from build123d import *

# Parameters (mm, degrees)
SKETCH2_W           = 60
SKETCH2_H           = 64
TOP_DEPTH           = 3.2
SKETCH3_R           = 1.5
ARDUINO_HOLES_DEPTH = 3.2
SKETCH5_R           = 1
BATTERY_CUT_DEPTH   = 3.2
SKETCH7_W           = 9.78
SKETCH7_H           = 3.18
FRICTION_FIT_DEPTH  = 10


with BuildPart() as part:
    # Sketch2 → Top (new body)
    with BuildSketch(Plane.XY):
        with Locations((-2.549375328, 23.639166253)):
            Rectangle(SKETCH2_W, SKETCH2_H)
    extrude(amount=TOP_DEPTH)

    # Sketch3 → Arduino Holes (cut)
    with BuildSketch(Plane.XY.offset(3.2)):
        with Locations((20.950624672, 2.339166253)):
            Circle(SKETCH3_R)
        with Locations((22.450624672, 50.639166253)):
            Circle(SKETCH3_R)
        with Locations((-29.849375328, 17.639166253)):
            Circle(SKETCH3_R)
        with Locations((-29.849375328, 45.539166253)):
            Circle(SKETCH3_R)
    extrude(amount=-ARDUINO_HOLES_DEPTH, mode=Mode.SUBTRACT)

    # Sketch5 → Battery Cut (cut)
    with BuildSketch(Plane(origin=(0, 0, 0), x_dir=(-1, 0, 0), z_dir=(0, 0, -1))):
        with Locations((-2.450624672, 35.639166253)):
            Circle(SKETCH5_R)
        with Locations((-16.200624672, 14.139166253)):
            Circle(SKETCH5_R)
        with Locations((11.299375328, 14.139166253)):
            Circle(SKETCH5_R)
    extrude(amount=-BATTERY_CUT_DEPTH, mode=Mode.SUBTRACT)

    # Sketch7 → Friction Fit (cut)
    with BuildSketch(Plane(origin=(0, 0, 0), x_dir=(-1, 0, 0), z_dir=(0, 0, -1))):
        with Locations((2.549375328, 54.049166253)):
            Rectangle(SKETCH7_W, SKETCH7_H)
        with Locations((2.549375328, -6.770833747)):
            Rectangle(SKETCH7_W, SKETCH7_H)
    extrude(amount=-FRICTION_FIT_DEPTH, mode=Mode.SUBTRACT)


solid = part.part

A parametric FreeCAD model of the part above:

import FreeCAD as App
import Part
import Sketcher
from FreeCAD import Vector
Q = App.Units.Quantity


def add_polygon(sketch, points):
    """Adds a closed chain of lines whose ends are joined by coincident constraints."""
    first, n = sketch.GeometryCount, len(points)
    for a, b in zip(points, points[1:] + points[:1]):
        sketch.addGeometry(Part.LineSegment(App.Vector(*a, 0), App.Vector(*b, 0)), False)
    for i in range(n):
        sketch.addConstraint(Sketcher.Constraint("Coincident", first + i, 2, first + (i + 1) % n, 1))

doc = App.newDocument("Part")
body = doc.addObject("PartDesign::Body", "Body")

sketch1 = body.newObject("Sketcher::SketchObject", "Sketch")
sketch1.AttachmentSupport = (doc.getObject("XY_Plane"), [""])
sketch1.MapMode = "FlatFace"
add_polygon(sketch1, [(-33, 56), (-33, -8), (27, -8), (27, 56)])
sketch1.addConstraint([
    Sketcher.Constraint("Vertical", 0),
    Sketcher.Constraint("Horizontal", 1),
    Sketcher.Constraint("Vertical", 2),
    Sketcher.Constraint("Horizontal", 3),
    Sketcher.Constraint("DistanceX", 1, 1, 1, 2, Q("60 mm")),
    Sketcher.Constraint("DistanceY", 0, 2, 0, 1, Q("64 mm")),
    Sketcher.Constraint("DistanceX", 0, 2, -1, 1, Q("32.549375 mm")),
    Sketcher.Constraint("DistanceY", 0, 2, -1, 1, Q("8.360834 mm")),
])
pad1 = body.newObject("PartDesign::Pad", "Pad")
pad1.Profile = sketch1
pad1.Length = 3.2

sketch2 = body.newObject("Sketcher::SketchObject", "Sketch001")
sketch2.AttachmentSupport = (doc.getObject("XY_Plane"), [""])
sketch2.MapMode = "FlatFace"
sketch2.AttachmentOffset = App.Placement(Vector(0, 0, 3.2), App.Rotation())
sketch2.addGeometry([
    Part.Circle(Vector(21, 2.3, 0), Vector(0, 0, 1), 1.5),
    Part.Circle(Vector(22.5, 50.6, 0), Vector(0, 0, 1), 1.5),
    Part.Circle(Vector(-29.8, 17.6, 0), Vector(0, 0, 1), 1.5),
    Part.Circle(Vector(-29.8, 45.5, 0), Vector(0, 0, 1), 1.5),
], False)
sketch2.addConstraint([
    Sketcher.Constraint("Equal", 0, 1),
    Sketcher.Constraint("Equal", 1, 2),
    Sketcher.Constraint("Equal", 2, 3),
    Sketcher.Constraint("Vertical", 2, 3, 3, 3),
    Sketcher.Constraint("Diameter", 0, Q("3 mm")),
    Sketcher.Constraint("DistanceY", 2, 3, 1, 3, Q("33 mm")),
    Sketcher.Constraint("DistanceX", 0, 3, 1, 3, Q("1.5 mm")),
    Sketcher.Constraint("DistanceY", 0, 3, 1, 3, Q("48.3 mm")),
    Sketcher.Constraint("DistanceX", 2, 3, 0, 3, Q("50.8 mm")),
    Sketcher.Constraint("DistanceY", 2, 3, 3, 3, Q("27.9 mm")),
    Sketcher.Constraint("DistanceX", -1, 1, 0, 3, Q("20.950625 mm")),
    Sketcher.Constraint("DistanceY", -1, 1, 0, 3, Q("2.339166 mm")),
])
pocket1 = body.newObject("PartDesign::Pocket", "Pocket")
pocket1.Profile = sketch2
pocket1.Length = 3.2

sketch3 = body.newObject("Sketcher::SketchObject", "Sketch002")
sketch3.AttachmentSupport = (doc.getObject("XY_Plane"), [""])
sketch3.MapMode = "FlatFace"
sketch3.addGeometry([
    Part.Circle(Vector(2.5, 35.6, 0), Vector(0, 0, 1), 1),
    Part.Circle(Vector(16.2, 14.1, 0), Vector(0, 0, 1), 1),
    Part.Circle(Vector(-11.3, 14.1, 0), Vector(0, 0, 1), 1),
], False)
sketch3.addConstraint([
    Sketcher.Constraint("Equal", 0, 1),
    Sketcher.Constraint("Equal", 1, 2),
    Sketcher.Constraint("Horizontal", 1, 3, 2, 3),
    Sketcher.Constraint("Diameter", 0, Q("2 mm")),
    Sketcher.Constraint("DistanceY", 1, 3, 0, 3, Q("21.5 mm")),
    Sketcher.Constraint("DistanceX", 2, 3, 1, 3, Q("27.5 mm")),
    Sketcher.Constraint("DistanceX", 0, 3, 1, 3, Q("13.75 mm")),
    Sketcher.Constraint("DistanceX", -1, 1, 0, 3, Q("2.450625 mm")),
    Sketcher.Constraint("DistanceY", -1, 1, 0, 3, Q("35.639166 mm")),
])
pocket2 = body.newObject("PartDesign::Pocket", "Pocket001")
pocket2.Profile = sketch3
pocket2.Length = 3.2
pocket2.Reversed = True

sketch4 = body.newObject("Sketcher::SketchObject", "Sketch003")
sketch4.AttachmentSupport = (doc.getObject("XY_Plane"), [""])
sketch4.MapMode = "FlatFace"
add_polygon(sketch4, [(2.3, 55.6), (2.3, 52.5), (-7.4, 52.5), (-7.4, 55.6)])
add_polygon(sketch4, [(2.3, -5.2), (2.3, -8.4), (-7.4, -8.4), (-7.4, -5.2)])
sketch4.addConstraint([
    Sketcher.Constraint("Vertical", 0),
    Sketcher.Constraint("Horizontal", 1),
    Sketcher.Constraint("Vertical", 2),
    Sketcher.Constraint("Horizontal", 3),
    Sketcher.Constraint("Vertical", 4),
    Sketcher.Constraint("Horizontal", 5),
    Sketcher.Constraint("Vertical", 6),
    Sketcher.Constraint("Horizontal", 7),
    Sketcher.Constraint("Vertical", 3, 2, 4, 2),
    Sketcher.Constraint("Vertical", 2, 2, 5, 2),
    Sketcher.Constraint("Equal", 2, 4),
    Sketcher.Constraint("DistanceY", 4, 2, 3, 2, Q("64 mm")),
    Sketcher.Constraint("DistanceX", 1, 2, 1, 1, Q("9.78 mm")),
    Sketcher.Constraint("DistanceY", 0, 2, 0, 1, Q("3.18 mm")),
    Sketcher.Constraint("DistanceX", -1, 1, 0, 2, Q("2.340625 mm")),
    Sketcher.Constraint("DistanceY", -1, 1, 0, 2, Q("52.459166 mm")),
])
pocket3 = body.newObject("PartDesign::Pocket", "Pocket002")
pocket3.Profile = sketch4
pocket3.Length = 10
pocket3.Reversed = True

doc.recompute()
